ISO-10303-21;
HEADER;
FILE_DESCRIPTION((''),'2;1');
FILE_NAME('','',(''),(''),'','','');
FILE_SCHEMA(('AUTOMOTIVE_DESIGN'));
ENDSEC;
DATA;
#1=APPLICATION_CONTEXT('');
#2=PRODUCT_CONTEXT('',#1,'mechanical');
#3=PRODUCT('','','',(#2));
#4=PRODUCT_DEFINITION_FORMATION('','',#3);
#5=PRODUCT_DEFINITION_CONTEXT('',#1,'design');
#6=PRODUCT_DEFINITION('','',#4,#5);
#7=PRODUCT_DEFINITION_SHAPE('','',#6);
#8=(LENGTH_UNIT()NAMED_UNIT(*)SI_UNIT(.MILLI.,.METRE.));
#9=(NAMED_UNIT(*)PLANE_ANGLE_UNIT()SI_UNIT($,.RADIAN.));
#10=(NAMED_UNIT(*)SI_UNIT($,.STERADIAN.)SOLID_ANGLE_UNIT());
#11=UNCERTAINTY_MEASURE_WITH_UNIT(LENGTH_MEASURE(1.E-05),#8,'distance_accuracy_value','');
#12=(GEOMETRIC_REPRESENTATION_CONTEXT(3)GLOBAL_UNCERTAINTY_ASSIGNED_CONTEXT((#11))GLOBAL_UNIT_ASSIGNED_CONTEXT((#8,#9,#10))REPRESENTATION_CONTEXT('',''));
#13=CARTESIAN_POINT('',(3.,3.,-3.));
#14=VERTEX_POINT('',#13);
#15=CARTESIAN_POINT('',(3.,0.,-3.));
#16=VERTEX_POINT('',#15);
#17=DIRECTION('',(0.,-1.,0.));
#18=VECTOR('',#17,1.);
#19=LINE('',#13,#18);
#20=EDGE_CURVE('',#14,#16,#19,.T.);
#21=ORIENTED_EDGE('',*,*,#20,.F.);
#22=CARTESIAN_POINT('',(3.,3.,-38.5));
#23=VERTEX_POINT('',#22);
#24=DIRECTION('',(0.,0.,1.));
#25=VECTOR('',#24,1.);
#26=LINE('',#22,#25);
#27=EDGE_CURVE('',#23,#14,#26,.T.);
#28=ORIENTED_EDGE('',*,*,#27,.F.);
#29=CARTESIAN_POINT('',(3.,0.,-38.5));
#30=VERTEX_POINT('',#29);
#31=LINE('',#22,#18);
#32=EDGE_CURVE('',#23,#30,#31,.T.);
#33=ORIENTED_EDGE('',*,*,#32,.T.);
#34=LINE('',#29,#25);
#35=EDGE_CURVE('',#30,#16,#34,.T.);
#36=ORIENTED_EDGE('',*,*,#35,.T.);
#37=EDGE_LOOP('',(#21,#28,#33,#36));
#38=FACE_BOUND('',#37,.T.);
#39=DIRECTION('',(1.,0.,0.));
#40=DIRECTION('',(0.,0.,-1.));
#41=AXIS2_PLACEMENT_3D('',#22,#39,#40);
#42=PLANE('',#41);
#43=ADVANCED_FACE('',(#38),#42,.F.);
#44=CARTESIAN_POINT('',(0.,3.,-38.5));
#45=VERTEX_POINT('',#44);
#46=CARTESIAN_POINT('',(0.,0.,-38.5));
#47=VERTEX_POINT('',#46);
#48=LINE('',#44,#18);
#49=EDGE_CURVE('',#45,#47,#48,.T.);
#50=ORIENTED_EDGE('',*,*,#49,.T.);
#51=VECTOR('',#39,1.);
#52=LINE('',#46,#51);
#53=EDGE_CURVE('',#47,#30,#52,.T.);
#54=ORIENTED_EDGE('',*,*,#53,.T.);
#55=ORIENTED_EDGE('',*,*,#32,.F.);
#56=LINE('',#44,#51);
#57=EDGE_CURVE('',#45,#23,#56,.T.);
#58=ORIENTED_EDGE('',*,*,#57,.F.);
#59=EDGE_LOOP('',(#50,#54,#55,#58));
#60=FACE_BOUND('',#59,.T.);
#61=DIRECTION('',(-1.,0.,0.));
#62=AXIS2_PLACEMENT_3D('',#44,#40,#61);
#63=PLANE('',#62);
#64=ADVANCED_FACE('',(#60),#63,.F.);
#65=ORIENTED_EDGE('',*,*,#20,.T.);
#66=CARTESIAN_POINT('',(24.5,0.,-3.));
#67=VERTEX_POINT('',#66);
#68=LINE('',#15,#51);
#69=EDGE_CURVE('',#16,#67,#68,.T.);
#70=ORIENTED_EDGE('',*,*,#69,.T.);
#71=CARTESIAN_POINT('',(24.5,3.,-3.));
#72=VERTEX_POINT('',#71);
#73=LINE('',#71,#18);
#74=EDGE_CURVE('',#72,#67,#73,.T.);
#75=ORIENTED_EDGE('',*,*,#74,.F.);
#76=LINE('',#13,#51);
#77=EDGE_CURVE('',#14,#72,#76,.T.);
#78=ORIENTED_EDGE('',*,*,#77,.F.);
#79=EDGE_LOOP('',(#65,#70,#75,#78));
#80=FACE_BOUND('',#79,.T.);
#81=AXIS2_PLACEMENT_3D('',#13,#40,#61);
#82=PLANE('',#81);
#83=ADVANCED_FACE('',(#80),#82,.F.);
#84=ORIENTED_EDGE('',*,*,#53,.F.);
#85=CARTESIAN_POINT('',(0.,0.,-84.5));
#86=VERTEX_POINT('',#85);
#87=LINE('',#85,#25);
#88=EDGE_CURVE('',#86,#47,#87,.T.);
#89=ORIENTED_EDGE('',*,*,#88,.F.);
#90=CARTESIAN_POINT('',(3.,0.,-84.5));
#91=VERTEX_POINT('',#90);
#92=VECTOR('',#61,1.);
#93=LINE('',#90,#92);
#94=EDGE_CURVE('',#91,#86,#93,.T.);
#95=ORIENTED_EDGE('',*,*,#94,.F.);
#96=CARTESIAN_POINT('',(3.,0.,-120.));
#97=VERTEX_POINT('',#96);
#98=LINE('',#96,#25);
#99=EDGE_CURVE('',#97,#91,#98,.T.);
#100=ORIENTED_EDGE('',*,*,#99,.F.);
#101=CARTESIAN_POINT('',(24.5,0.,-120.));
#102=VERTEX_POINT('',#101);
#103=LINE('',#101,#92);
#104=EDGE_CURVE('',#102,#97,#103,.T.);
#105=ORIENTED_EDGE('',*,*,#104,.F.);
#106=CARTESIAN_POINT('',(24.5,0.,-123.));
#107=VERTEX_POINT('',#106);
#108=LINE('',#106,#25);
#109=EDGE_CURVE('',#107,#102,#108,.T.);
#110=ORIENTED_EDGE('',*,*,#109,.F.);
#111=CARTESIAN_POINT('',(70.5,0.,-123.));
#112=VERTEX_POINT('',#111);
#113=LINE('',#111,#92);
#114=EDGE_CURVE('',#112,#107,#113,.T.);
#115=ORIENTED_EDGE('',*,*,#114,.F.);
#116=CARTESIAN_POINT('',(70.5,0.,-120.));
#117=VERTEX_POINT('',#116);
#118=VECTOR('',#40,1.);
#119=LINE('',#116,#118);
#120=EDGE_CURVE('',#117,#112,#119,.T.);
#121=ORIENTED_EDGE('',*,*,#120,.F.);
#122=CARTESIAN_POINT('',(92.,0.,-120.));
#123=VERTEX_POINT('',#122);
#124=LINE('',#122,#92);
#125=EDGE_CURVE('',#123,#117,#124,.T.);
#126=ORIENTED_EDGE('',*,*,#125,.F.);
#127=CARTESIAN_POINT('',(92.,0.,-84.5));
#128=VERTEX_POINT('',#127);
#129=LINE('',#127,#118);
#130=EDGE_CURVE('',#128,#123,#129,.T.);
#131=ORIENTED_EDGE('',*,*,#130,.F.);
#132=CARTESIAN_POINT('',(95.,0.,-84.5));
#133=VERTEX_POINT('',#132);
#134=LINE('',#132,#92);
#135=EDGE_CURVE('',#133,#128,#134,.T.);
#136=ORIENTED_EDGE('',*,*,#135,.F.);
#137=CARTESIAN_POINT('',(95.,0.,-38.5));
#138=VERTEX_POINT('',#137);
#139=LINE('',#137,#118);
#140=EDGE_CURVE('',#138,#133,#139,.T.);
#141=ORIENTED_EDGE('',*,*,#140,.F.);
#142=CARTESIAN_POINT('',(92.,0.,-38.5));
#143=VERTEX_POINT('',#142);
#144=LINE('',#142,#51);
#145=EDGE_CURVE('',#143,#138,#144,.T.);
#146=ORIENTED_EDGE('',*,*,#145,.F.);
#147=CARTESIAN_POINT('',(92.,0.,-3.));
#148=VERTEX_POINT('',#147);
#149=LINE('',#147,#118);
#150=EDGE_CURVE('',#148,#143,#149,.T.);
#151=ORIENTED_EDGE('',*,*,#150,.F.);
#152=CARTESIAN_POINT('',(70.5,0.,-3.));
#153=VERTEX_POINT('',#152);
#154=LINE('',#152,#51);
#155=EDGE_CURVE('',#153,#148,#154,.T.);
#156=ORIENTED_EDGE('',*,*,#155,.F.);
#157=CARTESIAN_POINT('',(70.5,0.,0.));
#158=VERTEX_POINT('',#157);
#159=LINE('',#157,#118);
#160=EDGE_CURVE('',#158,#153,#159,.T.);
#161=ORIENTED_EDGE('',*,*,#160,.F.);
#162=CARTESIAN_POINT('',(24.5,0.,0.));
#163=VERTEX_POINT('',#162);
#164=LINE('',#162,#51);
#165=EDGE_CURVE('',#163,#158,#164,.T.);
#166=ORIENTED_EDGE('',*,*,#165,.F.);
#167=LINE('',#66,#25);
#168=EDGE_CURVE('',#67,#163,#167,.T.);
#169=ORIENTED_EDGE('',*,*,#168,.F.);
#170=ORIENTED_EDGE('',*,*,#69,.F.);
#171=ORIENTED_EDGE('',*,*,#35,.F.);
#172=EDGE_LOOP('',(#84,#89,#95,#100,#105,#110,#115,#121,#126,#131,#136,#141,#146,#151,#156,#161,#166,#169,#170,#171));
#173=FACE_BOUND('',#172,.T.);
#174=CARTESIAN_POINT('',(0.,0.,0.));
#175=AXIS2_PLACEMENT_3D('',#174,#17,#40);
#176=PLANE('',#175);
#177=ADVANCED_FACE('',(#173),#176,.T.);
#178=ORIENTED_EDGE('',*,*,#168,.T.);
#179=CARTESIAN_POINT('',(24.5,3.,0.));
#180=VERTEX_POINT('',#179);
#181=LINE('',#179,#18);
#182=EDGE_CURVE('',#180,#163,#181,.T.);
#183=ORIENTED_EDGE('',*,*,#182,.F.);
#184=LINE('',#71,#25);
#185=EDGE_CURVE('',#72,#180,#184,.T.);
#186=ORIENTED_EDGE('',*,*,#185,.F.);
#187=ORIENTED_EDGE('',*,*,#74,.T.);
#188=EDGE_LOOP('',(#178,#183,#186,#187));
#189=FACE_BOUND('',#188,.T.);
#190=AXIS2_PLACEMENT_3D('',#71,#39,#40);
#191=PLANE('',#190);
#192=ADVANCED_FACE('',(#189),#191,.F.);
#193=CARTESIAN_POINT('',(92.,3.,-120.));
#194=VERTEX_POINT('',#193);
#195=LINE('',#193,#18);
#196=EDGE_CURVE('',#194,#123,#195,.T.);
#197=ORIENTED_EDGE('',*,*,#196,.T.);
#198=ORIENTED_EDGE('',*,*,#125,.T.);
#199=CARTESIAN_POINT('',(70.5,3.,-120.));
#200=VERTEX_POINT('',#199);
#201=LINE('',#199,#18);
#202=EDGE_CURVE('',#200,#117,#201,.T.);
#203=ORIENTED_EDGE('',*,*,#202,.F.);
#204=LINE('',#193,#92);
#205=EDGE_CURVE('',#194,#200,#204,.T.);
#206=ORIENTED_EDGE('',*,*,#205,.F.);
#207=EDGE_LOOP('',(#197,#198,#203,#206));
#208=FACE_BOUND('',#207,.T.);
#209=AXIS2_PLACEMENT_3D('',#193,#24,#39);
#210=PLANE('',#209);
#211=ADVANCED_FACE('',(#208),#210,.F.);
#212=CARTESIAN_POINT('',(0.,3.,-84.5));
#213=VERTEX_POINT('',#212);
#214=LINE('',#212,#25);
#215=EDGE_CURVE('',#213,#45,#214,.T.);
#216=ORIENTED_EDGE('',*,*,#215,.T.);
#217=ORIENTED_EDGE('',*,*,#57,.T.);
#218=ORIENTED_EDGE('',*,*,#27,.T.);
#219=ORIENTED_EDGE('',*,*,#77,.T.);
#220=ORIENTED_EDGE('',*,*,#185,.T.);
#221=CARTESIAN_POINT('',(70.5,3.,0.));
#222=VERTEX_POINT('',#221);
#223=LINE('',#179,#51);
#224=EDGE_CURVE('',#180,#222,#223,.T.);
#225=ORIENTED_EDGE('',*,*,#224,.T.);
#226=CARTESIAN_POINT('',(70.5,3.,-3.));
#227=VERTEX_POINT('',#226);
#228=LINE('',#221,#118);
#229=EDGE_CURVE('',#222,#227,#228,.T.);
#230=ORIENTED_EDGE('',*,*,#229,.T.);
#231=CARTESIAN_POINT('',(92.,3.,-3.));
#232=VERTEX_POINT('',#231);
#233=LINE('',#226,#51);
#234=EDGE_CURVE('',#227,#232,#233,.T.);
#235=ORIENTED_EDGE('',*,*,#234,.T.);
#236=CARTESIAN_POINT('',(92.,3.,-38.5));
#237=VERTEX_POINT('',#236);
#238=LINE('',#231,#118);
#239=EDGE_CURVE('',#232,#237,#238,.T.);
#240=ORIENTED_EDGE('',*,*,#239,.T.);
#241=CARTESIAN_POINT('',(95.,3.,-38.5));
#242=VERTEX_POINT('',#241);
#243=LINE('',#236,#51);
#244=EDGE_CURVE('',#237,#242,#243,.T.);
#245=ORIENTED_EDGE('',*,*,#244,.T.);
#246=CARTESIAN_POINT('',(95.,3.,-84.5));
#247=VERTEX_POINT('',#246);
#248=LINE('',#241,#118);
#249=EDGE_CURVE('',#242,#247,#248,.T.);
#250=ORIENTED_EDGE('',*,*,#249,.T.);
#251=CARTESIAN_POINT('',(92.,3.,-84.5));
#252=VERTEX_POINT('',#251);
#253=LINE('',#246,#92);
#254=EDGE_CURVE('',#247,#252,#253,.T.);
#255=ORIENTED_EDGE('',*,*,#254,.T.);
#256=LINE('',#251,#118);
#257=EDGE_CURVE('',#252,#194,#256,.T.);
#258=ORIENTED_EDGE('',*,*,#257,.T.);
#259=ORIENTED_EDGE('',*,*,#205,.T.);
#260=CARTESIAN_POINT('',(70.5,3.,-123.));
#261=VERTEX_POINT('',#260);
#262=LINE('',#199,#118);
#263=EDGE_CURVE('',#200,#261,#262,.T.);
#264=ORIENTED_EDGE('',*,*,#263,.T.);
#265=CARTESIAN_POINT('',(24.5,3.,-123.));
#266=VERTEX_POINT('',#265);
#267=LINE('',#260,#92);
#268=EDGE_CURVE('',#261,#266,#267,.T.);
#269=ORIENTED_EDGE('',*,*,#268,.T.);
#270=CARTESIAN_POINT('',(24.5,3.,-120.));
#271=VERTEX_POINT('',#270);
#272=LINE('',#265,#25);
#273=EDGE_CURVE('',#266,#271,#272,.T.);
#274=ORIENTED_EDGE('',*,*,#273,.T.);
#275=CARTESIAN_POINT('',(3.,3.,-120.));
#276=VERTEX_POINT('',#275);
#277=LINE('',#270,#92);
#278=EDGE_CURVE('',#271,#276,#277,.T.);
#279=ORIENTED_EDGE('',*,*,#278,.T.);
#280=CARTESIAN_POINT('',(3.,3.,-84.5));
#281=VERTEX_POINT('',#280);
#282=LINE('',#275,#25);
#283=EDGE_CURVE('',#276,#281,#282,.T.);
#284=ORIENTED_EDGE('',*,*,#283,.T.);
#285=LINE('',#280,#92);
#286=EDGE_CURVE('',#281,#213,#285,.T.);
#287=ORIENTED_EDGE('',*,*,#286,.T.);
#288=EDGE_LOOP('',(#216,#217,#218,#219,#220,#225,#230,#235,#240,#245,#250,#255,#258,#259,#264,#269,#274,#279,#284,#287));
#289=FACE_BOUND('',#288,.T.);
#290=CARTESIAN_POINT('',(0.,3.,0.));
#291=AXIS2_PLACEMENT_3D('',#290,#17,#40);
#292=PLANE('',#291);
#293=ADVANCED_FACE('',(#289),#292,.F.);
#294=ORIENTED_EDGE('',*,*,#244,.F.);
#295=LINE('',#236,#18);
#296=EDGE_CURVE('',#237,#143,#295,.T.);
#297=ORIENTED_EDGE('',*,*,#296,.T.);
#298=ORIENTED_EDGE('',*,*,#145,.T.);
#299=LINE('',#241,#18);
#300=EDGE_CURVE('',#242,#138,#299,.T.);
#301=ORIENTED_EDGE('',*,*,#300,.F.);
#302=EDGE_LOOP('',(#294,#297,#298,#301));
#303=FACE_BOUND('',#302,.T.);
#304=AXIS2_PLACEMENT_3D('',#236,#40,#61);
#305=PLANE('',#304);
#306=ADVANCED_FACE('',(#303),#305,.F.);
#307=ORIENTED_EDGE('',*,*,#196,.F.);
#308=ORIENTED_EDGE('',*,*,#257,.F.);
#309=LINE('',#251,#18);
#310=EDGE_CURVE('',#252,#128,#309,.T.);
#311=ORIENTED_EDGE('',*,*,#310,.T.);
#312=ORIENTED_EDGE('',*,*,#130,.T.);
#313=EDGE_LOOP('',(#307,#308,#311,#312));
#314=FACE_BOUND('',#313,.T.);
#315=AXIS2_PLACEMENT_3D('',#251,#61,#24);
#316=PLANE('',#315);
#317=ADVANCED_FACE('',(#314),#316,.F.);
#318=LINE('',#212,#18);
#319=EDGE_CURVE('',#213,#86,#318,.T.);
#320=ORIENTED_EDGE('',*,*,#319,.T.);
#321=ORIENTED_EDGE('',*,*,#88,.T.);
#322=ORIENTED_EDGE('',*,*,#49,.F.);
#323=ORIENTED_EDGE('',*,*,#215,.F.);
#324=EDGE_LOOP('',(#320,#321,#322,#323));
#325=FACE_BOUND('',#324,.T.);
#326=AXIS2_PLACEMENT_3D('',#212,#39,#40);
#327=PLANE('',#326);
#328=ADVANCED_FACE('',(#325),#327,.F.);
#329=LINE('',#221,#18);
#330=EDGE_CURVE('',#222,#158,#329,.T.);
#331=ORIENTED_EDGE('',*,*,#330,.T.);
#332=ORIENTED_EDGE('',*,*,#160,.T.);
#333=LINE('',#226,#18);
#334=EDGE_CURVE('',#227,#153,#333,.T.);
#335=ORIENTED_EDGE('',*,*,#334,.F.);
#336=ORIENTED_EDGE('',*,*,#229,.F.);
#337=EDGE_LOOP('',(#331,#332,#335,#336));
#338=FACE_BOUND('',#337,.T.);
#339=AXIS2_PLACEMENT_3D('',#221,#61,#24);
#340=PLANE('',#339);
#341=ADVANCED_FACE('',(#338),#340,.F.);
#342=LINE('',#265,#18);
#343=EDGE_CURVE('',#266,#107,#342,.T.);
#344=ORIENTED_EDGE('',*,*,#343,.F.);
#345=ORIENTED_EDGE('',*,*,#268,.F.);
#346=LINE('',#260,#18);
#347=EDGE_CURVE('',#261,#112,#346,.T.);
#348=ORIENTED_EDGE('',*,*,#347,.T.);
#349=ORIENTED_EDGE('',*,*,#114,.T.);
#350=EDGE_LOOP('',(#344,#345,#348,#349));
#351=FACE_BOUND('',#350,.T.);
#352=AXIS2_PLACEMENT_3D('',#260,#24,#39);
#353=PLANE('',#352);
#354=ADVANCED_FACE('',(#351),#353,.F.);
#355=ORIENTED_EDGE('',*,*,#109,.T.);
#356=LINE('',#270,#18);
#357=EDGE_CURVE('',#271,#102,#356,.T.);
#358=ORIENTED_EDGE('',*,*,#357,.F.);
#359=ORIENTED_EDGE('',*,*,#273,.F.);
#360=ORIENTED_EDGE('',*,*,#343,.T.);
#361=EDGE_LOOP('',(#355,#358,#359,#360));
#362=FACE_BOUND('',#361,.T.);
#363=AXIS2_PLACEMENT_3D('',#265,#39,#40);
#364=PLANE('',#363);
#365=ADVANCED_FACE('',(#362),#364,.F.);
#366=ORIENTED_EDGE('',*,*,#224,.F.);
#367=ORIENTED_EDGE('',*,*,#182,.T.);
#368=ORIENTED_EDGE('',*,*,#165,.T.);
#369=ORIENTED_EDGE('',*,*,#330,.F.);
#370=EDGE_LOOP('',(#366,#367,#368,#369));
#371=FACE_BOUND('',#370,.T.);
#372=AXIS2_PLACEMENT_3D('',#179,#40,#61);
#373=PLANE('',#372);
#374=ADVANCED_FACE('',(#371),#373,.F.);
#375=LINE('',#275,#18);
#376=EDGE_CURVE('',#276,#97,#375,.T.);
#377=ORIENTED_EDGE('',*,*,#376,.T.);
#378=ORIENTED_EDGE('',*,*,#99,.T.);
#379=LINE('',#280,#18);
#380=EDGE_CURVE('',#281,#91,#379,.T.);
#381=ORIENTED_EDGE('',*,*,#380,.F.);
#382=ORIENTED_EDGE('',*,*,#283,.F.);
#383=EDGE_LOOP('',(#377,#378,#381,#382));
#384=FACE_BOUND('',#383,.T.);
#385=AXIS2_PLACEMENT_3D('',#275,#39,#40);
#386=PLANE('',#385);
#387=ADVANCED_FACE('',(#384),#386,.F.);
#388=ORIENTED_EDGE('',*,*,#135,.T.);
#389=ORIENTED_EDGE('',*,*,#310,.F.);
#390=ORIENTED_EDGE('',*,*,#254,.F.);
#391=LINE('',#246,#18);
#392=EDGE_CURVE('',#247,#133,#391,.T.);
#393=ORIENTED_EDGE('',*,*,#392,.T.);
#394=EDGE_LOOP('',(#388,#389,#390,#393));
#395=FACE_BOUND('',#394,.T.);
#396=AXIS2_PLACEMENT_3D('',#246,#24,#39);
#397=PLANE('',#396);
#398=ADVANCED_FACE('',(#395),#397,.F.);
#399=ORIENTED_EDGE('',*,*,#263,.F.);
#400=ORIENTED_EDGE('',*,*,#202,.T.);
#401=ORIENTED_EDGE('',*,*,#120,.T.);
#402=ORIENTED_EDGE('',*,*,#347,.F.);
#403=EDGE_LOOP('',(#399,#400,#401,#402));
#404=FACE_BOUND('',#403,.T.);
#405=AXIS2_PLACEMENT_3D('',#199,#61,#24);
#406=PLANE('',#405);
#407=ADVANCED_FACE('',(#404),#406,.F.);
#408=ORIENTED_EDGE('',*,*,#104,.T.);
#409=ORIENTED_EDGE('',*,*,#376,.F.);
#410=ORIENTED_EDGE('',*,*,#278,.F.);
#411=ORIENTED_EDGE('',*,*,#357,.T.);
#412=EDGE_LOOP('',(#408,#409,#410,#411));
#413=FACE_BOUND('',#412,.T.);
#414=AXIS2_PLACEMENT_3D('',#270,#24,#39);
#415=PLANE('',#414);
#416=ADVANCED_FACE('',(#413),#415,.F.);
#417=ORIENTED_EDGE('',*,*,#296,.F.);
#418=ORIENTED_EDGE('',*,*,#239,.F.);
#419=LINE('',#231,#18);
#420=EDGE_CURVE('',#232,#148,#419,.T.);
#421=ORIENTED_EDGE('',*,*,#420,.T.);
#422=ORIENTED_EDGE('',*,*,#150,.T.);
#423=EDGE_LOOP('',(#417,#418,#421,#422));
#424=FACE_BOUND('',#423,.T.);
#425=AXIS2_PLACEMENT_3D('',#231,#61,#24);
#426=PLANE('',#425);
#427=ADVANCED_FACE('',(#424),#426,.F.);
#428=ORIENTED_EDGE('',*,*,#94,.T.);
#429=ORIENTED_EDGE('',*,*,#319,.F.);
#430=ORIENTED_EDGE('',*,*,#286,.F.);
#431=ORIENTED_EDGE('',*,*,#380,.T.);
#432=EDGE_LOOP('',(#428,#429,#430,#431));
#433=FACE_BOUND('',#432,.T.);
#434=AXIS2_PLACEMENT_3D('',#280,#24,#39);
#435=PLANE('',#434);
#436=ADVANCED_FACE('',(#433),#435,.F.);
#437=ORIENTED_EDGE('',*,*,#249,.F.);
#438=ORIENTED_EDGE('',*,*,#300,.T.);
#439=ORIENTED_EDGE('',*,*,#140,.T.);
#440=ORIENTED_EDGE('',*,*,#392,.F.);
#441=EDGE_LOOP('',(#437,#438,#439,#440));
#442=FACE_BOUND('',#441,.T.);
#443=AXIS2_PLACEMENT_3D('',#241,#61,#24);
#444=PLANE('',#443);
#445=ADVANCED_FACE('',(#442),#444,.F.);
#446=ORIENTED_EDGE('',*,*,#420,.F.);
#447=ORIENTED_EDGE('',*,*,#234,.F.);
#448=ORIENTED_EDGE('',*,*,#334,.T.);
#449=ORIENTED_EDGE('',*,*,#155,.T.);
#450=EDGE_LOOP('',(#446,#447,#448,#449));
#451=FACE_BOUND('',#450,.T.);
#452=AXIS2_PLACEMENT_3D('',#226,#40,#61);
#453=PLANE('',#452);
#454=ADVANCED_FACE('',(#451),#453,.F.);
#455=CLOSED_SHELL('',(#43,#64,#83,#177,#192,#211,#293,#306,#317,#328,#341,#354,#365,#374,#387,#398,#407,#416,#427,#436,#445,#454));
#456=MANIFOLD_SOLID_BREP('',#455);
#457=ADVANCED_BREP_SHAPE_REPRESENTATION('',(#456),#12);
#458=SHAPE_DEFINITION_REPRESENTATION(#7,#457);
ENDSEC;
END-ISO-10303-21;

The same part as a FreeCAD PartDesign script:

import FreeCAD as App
import Part
import Sketcher


def add_polygon(sketch, points):
    """Adds a closed chain of lines whose ends are joined by coincident constraints."""
    first, n = sketch.GeometryCount, len(points)
    for a, b in zip(points, points[1:] + points[:1]):
        sketch.addGeometry(Part.LineSegment(App.Vector(*a, 0), App.Vector(*b, 0)), False)
    for i in range(n):
        sketch.addConstraint(Sketcher.Constraint("Coincident", first + i, 2, first + (i + 1) % n, 1))

doc = App.newDocument("Part")
body = doc.addObject("PartDesign::Body", "Body")

# Sketch on XZ plane
sketch1 = doc.addObject("Sketcher::SketchObject", "Sketch")
body.addObject(sketch1)
sketch1.AttachmentSupport = (doc.XZ_Plane, [""])
sketch1.MapMode = "FlatFace"
add_polygon(sketch1, [(3, -38.5), (3, -3), (24.5, -3), (24.5, 0), (70.5, 0), (70.5, -3), (92, -3), (92, -38.5), (95, -38.5), (95, -84.5), (92, -84.5), (92, -120), (70.5, -120), (70.5, -123), (24.5, -123), (24.5, -120), (3, -120), (3, -84.5), (0, -84.5), (0, -38.5)])  # lines 0-19
sketch1.addConstraint([
    Sketcher.Constraint("Vertical", 0),
    Sketcher.Constraint("Horizontal", 1),
    Sketcher.Constraint("Vertical", 2),
    Sketcher.Constraint("Horizontal", 3),
    Sketcher.Constraint("Vertical", 4),
    Sketcher.Constraint("Horizontal", 5),
    Sketcher.Constraint("Vertical", 6),
    Sketcher.Constraint("Horizontal", 7),
    Sketcher.Constraint("Vertical", 8),
    Sketcher.Constraint("Horizontal", 9),
    Sketcher.Constraint("Vertical", 10),
    Sketcher.Constraint("Horizontal", 11),
    Sketcher.Constraint("Vertical", 12),
    Sketcher.Constraint("Horizontal", 13),
    Sketcher.Constraint("Vertical", 14),
    Sketcher.Constraint("Horizontal", 15),
    Sketcher.Constraint("Vertical", 16),
    Sketcher.Constraint("Horizontal", 17),
    Sketcher.Constraint("Vertical", 18),
    Sketcher.Constraint("Horizontal", 19),
    Sketcher.Constraint("PointOnObject", 2, 2, -1),
    Sketcher.Constraint("PointOnObject", 17, 2, -2),
    Sketcher.Constraint("Horizontal", 1, 2, 4, 2),
    Sketcher.Constraint("Horizontal", 11, 2, 14, 2),
    Sketcher.Constraint("Horizontal", 9, 2, 16, 2),
    Sketcher.Constraint("Horizontal", 7, 2, 18, 2),
    Sketcher.Constraint("Vertical", 6, 2, 9, 2),
    Sketcher.Constraint("Vertical", 4, 2, 11, 2),
    Sketcher.Constraint("Vertical", 2, 2, 13, 2),
    Sketcher.Constraint("Vertical", 0, 2, 15, 2),
    Sketcher.Constraint("Equal", 1, 5),
    Sketcher.Constraint("Equal", 9, 17),
    Sketcher.Constraint("Equal", 19, 2),
    Sketcher.Constraint("Equal", 13, 8),
    Sketcher.Constraint("Equal", 6, 10),
    Sketcher.Constraint("Equal", 4, 12),
    Sketcher.Constraint("DistanceX", 3, 1, 3, 2, 46.0),
    Sketcher.Constraint("DistanceX", 7, 1, 7, 2, 3.0),
    Sketcher.Constraint("DistanceX", 1, 1, 1, 2, 21.5),
    Sketcher.Constraint("DistanceY", 0, 1, 0, 2, 35.5),
])
pad1 = doc.addObject("PartDesign::Pad", "Pad")
body.addObject(pad1)
pad1.Profile = sketch1
pad1.Length = 3
pad1.Reversed = True

doc.recompute()
